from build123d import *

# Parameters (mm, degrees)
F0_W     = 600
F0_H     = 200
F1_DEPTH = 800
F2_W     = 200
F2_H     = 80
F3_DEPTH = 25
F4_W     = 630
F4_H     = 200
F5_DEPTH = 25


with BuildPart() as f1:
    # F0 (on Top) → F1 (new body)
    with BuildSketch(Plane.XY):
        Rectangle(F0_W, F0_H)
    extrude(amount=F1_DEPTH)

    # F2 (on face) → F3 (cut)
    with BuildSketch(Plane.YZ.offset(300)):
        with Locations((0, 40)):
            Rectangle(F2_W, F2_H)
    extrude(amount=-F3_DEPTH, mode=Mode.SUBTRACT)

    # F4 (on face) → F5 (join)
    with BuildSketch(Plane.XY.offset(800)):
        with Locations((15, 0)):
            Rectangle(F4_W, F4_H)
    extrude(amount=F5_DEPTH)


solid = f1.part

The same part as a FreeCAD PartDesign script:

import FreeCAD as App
import Part
import Sketcher

V = App.Vector

doc = App.newDocument("Part")
body = doc.addObject("PartDesign::Body", "Body")

sketch1 = body.newObject("Sketcher::SketchObject", "Sketch")
sketch1.AttachmentSupport = (doc.getObject("XY_Plane"), [""])
sketch1.MapMode = "FlatFace"
sketch1.addGeometry(Part.LineSegment(V(-300, 100, 0), V(-300, -100, 0)), False)
sketch1.addGeometry(Part.LineSegment(V(-300, -100, 0), V(300, -100, 0)), False)
sketch1.addGeometry(Part.LineSegment(V(300, -100, 0), V(300, 100, 0)), False)
sketch1.addGeometry(Part.LineSegment(V(300, 100, 0), V(-300, 100, 0)), False)
sketch1.addConstraint(Sketcher.Constraint("Coincident", 0, 2, 1, 1))
sketch1.addConstraint(Sketcher.Constraint("Coincident", 1, 2, 2, 1))
sketch1.addConstraint(Sketcher.Constraint("Coincident", 2, 2, 3, 1))
sketch1.addConstraint(Sketcher.Constraint("Coincident", 3, 2, 0, 1))
sketch1.addConstraint(Sketcher.Constraint("Vertical", 0))
sketch1.addConstraint(Sketcher.Constraint("Horizontal", 1))
sketch1.addConstraint(Sketcher.Constraint("Vertical", 2))
sketch1.addConstraint(Sketcher.Constraint("Horizontal", 3))
sketch1.addConstraint(Sketcher.Constraint("Symmetric", 0, 2, 2, 2, -1, 1))
sketch1.addConstraint(Sketcher.Constraint("DistanceX", 1, 1, 1, 2, 600.0))
sketch1.addConstraint(Sketcher.Constraint("DistanceY", 0, 2, 0, 1, 200.0))
pad1 = body.newObject("PartDesign::Pad", "Pad")
pad1.Profile = sketch1
pad1.Length = 800

sketch2 = body.newObject("Sketcher::SketchObject", "Sketch001")
sketch2.AttachmentSupport = (doc.getObject("YZ_Plane"), [""])
sketch2.MapMode = "FlatFace"
sketch2.AttachmentOffset = App.Placement(V(0, 0, 300), App.Rotation())
sketch2.addGeometry(Part.LineSegment(V(-100, 80, 0), V(-100, 0, 0)), False)
sketch2.addGeometry(Part.LineSegment(V(-100, 0, 0), V(100, 0, 0)), False)
sketch2.addGeometry(Part.LineSegment(V(100, 0, 0), V(100, 80, 0)), False)
sketch2.addGeometry(Part.LineSegment(V(100, 80, 0), V(-100, 80, 0)), False)
sketch2.addConstraint(Sketcher.Constraint("Coincident", 0, 2, 1, 1))
sketch2.addConstraint(Sketcher.Constraint("Coincident", 1, 2, 2, 1))
sketch2.addConstraint(Sketcher.Constraint("Coincident", 2, 2, 3, 1))
sketch2.addConstraint(Sketcher.Constraint("Coincident", 3, 2, 0, 1))
sketch2.addConstraint(Sketcher.Constraint("Vertical", 0))
sketch2.addConstraint(Sketcher.Constraint("Horizontal", 1))
sketch2.addConstraint(Sketcher.Constraint("Vertical", 2))
sketch2.addConstraint(Sketcher.Constraint("Horizontal", 3))
sketch2.addConstraint(Sketcher.Constraint("Symmetric", 0, 2, 1, 2, -1, 1))
sketch2.addConstraint(Sketcher.Constraint("DistanceX", 1, 1, 1, 2, 200.0))
sketch2.addConstraint(Sketcher.Constraint("DistanceY", 0, 2, 0, 1, 80.0))
pocket1 = body.newObject("PartDesign::Pocket", "Pocket")
pocket1.Profile = sketch2
pocket1.Length = 25

sketch3 = body.newObject("Sketcher::SketchObject", "Sketch002")
sketch3.AttachmentSupport = (doc.getObject("XY_Plane"), [""])
sketch3.MapMode = "FlatFace"
sketch3.AttachmentOffset = App.Placement(V(0, 0, 800), App.Rotation())
sketch3.addGeometry(Part.LineSegment(V(-300, 100, 0), V(-300, -100, 0)), False)
sketch3.addGeometry(Part.LineSegment(V(-300, -100, 0), V(330, -100, 0)), False)
sketch3.addGeometry(Part.LineSegment(V(330, -100, 0), V(330, 100, 0)), False)
sketch3.addGeometry(Part.LineSegment(V(330, 100, 0), V(-300, 100, 0)), False)
sketch3.addConstraint(Sketcher.Constraint("Coincident", 0, 2, 1, 1))
sketch3.addConstraint(Sketcher.Constraint("Coincident", 1, 2, 2, 1))
sketch3.addConstraint(Sketcher.Constraint("Coincident", 2, 2, 3, 1))
sketch3.addConstraint(Sketcher.Constraint("Coincident", 3, 2, 0, 1))
sketch3.addConstraint(Sketcher.Constraint("Vertical", 0))
sketch3.addConstraint(Sketcher.Constraint("Horizontal", 1))
sketch3.addConstraint(Sketcher.Constraint("Vertical", 2))
sketch3.addConstraint(Sketcher.Constraint("Horizontal", 3))
sketch3.addConstraint(Sketcher.Constraint("DistanceX", 1, 1, 1, 2, 630.0))
sketch3.addConstraint(Sketcher.Constraint("DistanceY", 0, 2, 0, 1, 200.0))
sketch3.addConstraint(Sketcher.Constraint("DistanceX", 0, 2, -1, 1, 300.0))
sketch3.addConstraint(Sketcher.Constraint("DistanceY", 0, 2, -1, 1, 100.0))
pad2 = body.newObject("PartDesign::Pad", "Pad001")
pad2.Profile = sketch3
pad2.Length = 25

doc.recompute()
